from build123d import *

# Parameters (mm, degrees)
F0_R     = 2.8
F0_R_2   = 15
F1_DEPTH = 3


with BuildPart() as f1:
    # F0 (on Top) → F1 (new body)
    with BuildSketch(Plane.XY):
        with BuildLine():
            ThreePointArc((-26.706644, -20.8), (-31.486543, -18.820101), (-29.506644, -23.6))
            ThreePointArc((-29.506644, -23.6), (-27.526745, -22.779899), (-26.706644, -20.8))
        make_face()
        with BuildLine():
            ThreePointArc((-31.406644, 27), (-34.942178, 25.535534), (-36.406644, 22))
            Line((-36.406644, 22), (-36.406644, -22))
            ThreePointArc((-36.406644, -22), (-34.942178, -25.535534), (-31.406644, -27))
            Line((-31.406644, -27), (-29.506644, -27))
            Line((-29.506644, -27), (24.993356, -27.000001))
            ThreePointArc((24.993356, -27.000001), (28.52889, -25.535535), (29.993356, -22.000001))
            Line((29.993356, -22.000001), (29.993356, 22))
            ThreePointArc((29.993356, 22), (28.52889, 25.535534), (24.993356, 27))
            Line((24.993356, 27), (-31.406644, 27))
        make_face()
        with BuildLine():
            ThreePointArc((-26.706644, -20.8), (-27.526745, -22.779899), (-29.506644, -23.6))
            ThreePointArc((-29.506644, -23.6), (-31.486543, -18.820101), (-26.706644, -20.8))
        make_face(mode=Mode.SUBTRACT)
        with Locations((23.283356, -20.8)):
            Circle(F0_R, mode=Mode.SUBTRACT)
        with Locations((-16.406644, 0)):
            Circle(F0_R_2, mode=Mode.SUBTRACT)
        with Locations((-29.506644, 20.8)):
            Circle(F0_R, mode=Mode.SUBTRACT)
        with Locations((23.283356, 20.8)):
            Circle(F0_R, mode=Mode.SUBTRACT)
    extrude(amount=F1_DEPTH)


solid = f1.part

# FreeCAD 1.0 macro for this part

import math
import FreeCAD as App
import Part
import Sketcher

V = App.Vector

doc = App.newDocument("Part")
params = doc.addObject("Spreadsheet::Sheet", "Params")
for row, (alias, value) in enumerate([
    ("sketch1_diameter", "30 mm"),
    ("sketch1_radius", "5 mm"),
    ("sketch1_diameter2", "5.6 mm"),
    ("sketch1_height", "44 mm"),
    ("sketch1_width", "1.9 mm"),
    ("pad1_length", "3 mm"),
], start=1):
    params.set(f"A{row}", alias)
    params.set(f"B{row}", "=" + value)
    params.setAlias(f"B{row}", alias)

body = doc.addObject("PartDesign::Body", "Body")

# Sketch on XY plane
sketch1 = body.newObject("Sketcher::SketchObject", "Sketch")
sketch1.AttachmentSupport = (doc.getObject("XY_Plane"), [""])
sketch1.MapMode = "FlatFace"
sketch1.addGeometry([
    Part.ArcOfCircle(Part.Circle(V(-31.4, 22, 0), V(0, 0, 1), 5), math.radians(90), math.radians(180)),  # 0
    Part.LineSegment(V(-36.4, 22, 0), V(-36.4, -22, 0)),  # 1
    Part.ArcOfCircle(Part.Circle(V(-31.4, -22, 0), V(0, 0, 1), 5), math.radians(180), math.radians(270)),  # 2
    Part.LineSegment(V(-31.4, -27, 0), V(-29.5, -27, 0)),  # 3
    Part.LineSegment(V(-29.5, -27, 0), V(25, -27, 0)),  # 4
    Part.ArcOfCircle(Part.Circle(V(25, -22, 0), V(0, 0, 1), 5), math.radians(-90), math.radians(0)),  # 5
    Part.LineSegment(V(30, -22, 0), V(30, 22, 0)),  # 6
    Part.ArcOfCircle(Part.Circle(V(25, 22, 0), V(0, 0, 1), 5), math.radians(0), math.radians(90)),  # 7
    Part.LineSegment(V(25, 27, 0), V(-31.4, 27, 0)),  # 8
    Part.ArcOfCircle(Part.Circle(V(-29.5, -20.8, 0), V(0, 0, 1), 2.8), math.radians(0), math.radians(270)),  # 9
    Part.ArcOfCircle(Part.Circle(V(-29.5, -20.8, 0), V(0, 0, 1), 2.8), math.radians(-90), math.radians(0)),  # 10
    Part.Circle(V(23.3, -20.8, 0), V(0, 0, 1), 2.8),  # 11
    Part.Circle(V(-16.4, 0, 0), V(0, 0, 1), 15),  # 12
    Part.Circle(V(-29.5, 20.8, 0), V(0, 0, 1), 2.8),  # 13
    Part.Circle(V(23.3, 20.8, 0), V(0, 0, 1), 2.8),  # 14
], False)
sketch1.addConstraint([
    Sketcher.Constraint("Tangent", 0, 2, 1, 1),
    Sketcher.Constraint("Tangent", 1, 2, 2, 1),
    Sketcher.Constraint("Tangent", 2, 2, 3, 1),
    Sketcher.Constraint("Coincident", 3, 2, 4, 1),
    Sketcher.Constraint("Tangent", 4, 2, 5, 1),
    Sketcher.Constraint("Tangent", 5, 2, 6, 1),
    Sketcher.Constraint("Tangent", 6, 2, 7, 1),
    Sketcher.Constraint("Tangent", 7, 2, 8, 1),
    Sketcher.Constraint("Tangent", 8, 2, 0, 1),
    Sketcher.Constraint("Tangent", 9, 1, 10, 2),
    Sketcher.Constraint("Coincident", 10, 1, 9, 2),
    Sketcher.Constraint("Vertical", 1),
    Sketcher.Constraint("Horizontal", 3),
    Sketcher.Constraint("Horizontal", 4),
    Sketcher.Constraint("Vertical", 6),
    Sketcher.Constraint("Horizontal", 8),
    Sketcher.Constraint("Equal", 0, 2),
    Sketcher.Constraint("Equal", 2, 5),
    Sketcher.Constraint("Equal", 5, 7),
    Sketcher.Constraint("Equal", 10, 11),
    Sketcher.Constraint("Equal", 11, 13),
    Sketcher.Constraint("Equal", 13, 14),
    Sketcher.Constraint("Symmetric", 9, 3, 13, 3, -1),
    Sketcher.Constraint("Symmetric", 11, 3, 14, 3, -1),
    Sketcher.Constraint("PointOnObject", 12, 3, -1),
    Sketcher.Constraint("Horizontal", 10, 3, 11, 3),
    Sketcher.Constraint("Horizontal", 11, 3, 9, 1),
    Sketcher.Constraint("Vertical", 13, 3, 3, 2),
    Sketcher.Constraint("Vertical", 3, 2, 10, 1),
    Sketcher.Constraint("Diameter", 12, 30.0),
    Sketcher.Constraint("Radius", 0, 5.0),
    Sketcher.Constraint("Diameter", 11, 5.6),
    Sketcher.Constraint("DistanceY", 1, 2, 1, 1, 44.0),
    Sketcher.Constraint("DistanceX", 3, 1, 3, 2, 1.9),
    Sketcher.Constraint("DistanceX", 4, 1, 4, 2, 54.5),
    Sketcher.Constraint("DistanceY", -1, 1, 0, 3, 22.0),
    Sketcher.Constraint("DistanceX", 0, 3, 12, 3, 15.0),
    Sketcher.Constraint("DistanceY", 9, 3, -1, 1, 20.8),
    Sketcher.Constraint("DistanceX", 11, 3, 5, 3, 1.71),
    Sketcher.Constraint("DistanceX", 0, 3, -1, 1, 31.406644),
])
sketch1.setExpression("Constraints[29]", "Params.sketch1_diameter")
sketch1.setExpression("Constraints[30]", "Params.sketch1_radius")
sketch1.setExpression("Constraints[31]", "Params.sketch1_diameter2")
sketch1.setExpression("Constraints[32]", "Params.sketch1_height")
sketch1.setExpression("Constraints[33]", "Params.sketch1_width")
pad1 = body.newObject("PartDesign::Pad", "Pad")
pad1.Profile = sketch1
pad1.setExpression("Length", "Params.pad1_length")

doc.recompute()
